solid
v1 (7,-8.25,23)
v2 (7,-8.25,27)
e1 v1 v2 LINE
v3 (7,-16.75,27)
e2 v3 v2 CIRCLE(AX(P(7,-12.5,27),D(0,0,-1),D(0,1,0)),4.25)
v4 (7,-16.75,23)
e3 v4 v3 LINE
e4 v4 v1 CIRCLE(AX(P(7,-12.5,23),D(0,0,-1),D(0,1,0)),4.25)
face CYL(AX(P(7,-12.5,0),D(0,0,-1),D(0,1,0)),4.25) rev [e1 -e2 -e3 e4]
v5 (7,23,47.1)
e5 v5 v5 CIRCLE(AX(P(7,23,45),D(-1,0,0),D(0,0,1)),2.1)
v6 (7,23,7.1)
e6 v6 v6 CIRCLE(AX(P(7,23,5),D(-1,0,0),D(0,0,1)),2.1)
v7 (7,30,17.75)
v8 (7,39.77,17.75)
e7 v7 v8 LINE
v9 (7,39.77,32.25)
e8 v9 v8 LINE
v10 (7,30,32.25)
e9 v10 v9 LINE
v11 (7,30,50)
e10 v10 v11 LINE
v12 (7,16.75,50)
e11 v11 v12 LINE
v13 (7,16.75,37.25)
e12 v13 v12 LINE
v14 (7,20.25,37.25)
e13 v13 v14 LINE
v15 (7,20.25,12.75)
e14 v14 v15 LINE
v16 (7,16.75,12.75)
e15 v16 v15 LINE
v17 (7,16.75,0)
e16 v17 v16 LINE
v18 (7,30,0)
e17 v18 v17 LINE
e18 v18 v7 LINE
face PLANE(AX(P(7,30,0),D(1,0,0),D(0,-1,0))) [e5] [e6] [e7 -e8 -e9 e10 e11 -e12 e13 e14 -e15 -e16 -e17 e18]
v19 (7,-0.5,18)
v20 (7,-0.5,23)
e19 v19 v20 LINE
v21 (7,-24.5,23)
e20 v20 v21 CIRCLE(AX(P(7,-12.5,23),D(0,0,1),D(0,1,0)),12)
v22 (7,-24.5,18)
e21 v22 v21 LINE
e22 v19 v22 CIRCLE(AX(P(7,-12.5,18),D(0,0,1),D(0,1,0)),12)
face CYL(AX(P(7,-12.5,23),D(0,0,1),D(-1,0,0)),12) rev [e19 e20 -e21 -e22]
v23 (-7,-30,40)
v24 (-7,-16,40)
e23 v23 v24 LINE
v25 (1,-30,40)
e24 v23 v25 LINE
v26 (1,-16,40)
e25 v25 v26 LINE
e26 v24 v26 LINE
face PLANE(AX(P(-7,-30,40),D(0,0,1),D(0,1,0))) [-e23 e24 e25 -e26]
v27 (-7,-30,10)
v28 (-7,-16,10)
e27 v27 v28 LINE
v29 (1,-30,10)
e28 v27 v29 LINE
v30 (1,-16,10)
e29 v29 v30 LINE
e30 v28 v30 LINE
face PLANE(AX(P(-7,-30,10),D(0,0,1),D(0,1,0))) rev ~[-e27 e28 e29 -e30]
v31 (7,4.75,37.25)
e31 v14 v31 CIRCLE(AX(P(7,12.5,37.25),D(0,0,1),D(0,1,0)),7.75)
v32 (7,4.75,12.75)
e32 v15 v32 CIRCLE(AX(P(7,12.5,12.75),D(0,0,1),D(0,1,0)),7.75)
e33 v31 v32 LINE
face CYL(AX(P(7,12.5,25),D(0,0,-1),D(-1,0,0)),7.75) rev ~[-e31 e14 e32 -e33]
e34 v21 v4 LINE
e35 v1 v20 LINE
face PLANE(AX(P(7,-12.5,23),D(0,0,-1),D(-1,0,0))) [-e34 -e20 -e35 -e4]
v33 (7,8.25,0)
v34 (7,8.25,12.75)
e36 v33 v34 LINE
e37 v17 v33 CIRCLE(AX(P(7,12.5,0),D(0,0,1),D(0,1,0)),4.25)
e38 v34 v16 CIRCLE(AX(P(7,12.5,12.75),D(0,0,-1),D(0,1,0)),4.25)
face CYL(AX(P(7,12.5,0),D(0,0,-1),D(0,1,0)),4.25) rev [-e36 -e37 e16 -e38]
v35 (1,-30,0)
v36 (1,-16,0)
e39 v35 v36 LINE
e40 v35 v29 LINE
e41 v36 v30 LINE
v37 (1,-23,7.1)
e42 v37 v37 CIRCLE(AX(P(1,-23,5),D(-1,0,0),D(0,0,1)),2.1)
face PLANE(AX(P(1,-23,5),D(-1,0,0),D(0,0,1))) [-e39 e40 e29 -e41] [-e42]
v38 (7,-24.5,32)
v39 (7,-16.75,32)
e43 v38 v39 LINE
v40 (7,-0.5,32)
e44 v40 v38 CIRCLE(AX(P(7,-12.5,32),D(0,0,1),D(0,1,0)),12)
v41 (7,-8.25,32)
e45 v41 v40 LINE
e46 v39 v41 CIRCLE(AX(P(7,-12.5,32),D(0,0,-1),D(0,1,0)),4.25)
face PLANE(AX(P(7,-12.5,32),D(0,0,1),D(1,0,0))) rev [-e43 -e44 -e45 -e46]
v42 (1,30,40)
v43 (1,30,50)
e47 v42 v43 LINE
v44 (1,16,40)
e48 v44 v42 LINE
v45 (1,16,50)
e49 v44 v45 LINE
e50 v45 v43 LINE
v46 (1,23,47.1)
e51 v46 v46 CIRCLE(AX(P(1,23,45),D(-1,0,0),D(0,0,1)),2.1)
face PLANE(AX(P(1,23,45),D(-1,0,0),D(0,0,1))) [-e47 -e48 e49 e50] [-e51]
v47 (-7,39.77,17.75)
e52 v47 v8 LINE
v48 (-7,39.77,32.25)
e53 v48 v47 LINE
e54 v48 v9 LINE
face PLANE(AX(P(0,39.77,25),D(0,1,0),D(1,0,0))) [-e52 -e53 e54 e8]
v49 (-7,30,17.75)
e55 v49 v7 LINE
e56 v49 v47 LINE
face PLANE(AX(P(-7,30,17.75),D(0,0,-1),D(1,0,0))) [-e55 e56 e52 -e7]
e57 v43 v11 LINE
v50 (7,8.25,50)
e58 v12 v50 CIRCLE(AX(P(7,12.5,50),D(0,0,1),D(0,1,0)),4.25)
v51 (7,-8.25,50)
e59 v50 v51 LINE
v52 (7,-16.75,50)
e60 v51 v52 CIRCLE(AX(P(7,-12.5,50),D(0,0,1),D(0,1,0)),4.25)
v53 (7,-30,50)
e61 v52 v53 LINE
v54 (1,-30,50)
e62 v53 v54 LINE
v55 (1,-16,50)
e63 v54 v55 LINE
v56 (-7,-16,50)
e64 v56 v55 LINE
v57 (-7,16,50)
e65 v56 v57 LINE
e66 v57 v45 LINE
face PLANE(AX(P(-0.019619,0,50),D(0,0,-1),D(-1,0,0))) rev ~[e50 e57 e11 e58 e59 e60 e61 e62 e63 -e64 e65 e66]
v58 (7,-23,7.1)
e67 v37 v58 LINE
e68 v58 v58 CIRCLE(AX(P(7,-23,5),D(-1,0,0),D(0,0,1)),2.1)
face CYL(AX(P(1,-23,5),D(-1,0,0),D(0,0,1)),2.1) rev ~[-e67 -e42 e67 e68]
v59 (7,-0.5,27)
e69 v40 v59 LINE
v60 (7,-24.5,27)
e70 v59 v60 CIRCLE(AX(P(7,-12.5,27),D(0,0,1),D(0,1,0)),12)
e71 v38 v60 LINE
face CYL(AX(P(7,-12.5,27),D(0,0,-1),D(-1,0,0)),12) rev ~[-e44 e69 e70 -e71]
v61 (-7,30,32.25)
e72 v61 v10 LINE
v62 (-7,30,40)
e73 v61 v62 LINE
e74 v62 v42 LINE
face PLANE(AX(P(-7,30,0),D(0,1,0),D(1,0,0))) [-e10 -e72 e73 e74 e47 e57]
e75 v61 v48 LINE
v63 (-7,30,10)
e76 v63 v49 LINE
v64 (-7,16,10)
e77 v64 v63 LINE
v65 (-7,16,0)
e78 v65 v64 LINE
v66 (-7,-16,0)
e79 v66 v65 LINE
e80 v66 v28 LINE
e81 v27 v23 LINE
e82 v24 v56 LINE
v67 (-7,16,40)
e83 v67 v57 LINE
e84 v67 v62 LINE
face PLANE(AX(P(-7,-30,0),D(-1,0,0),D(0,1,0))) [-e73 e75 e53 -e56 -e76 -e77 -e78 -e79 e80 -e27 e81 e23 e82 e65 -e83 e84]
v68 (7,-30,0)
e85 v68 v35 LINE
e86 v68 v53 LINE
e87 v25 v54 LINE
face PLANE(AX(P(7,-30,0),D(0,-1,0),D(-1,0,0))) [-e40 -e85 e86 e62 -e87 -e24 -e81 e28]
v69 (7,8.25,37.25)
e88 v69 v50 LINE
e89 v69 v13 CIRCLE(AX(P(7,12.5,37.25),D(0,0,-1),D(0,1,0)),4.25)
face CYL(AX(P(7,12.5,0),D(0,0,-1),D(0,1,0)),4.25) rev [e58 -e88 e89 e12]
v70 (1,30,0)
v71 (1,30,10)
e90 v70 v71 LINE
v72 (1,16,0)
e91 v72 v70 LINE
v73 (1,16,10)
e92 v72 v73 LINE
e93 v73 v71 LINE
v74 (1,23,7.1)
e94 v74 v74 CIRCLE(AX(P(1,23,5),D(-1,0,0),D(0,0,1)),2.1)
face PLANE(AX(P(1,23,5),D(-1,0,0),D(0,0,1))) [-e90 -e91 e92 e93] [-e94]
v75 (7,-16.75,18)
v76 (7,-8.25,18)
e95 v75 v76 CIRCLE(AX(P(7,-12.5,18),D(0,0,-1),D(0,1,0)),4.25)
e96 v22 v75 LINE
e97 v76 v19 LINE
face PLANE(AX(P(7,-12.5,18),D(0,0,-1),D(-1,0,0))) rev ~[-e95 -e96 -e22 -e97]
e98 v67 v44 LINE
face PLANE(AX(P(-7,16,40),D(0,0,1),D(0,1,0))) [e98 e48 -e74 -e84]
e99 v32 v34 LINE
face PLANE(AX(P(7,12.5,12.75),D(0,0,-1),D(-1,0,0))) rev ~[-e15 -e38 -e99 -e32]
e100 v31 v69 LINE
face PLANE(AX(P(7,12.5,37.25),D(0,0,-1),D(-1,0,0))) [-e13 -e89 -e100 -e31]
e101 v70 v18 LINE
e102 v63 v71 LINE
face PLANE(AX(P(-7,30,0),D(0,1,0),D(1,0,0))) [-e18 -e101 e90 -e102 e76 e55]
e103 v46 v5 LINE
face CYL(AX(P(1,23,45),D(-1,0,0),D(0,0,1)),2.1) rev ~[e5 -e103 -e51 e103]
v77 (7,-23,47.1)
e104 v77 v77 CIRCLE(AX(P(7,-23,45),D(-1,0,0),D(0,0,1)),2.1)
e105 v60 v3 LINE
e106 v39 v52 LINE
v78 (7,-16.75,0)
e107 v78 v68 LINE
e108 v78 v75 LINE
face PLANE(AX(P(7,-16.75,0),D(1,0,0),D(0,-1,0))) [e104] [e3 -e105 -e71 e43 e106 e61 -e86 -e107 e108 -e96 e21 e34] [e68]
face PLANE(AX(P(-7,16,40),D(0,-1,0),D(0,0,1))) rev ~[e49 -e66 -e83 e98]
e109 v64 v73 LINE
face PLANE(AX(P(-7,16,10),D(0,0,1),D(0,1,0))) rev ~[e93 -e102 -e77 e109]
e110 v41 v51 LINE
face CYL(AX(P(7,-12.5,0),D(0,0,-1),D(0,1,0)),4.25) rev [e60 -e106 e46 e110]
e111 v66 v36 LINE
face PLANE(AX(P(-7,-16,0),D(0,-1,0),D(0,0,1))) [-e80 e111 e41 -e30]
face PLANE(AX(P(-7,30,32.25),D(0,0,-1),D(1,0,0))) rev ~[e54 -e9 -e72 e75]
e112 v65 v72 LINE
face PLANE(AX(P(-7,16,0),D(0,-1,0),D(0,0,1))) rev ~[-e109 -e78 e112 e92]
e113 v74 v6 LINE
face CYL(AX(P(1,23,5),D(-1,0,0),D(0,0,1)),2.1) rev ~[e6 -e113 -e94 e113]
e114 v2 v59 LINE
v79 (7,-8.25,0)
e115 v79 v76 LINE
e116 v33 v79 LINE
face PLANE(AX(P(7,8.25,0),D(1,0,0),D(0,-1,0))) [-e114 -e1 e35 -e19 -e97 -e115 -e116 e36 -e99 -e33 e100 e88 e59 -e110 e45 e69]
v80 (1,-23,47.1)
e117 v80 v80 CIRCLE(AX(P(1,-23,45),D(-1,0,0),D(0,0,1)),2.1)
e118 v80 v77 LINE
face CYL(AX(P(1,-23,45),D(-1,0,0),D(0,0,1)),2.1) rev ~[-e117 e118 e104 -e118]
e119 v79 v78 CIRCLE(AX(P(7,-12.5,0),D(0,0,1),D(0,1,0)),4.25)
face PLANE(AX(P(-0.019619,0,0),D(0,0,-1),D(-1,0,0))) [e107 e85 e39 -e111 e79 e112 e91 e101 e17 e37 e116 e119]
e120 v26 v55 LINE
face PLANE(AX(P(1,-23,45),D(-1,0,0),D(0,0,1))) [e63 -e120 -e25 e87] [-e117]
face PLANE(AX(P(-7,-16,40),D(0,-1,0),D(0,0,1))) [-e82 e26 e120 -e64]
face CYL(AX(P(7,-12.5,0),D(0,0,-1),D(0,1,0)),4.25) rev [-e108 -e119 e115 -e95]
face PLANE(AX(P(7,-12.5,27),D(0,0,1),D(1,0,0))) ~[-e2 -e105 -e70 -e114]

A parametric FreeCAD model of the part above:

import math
import FreeCAD as App
import Part
import Sketcher

V = App.Vector


def add_polygon(sketch, points):
    """Adds a closed chain of lines whose ends are joined by coincident constraints."""
    first, n = sketch.GeometryCount, len(points)
    for a, b in zip(points, points[1:] + points[:1]):
        sketch.addGeometry(Part.LineSegment(App.Vector(*a, 0), App.Vector(*b, 0)), False)
    for i in range(n):
        sketch.addConstraint(Sketcher.Constraint("Coincident", first + i, 2, first + (i + 1) % n, 1))

doc = App.newDocument("Part")
body = doc.addObject("PartDesign::Body", "Body")

# Sketch on XY plane
sketch1 = body.newObject("Sketcher::SketchObject", "Sketch")
sketch1.AttachmentSupport = (doc.getObject("XY_Plane"), [""])
sketch1.MapMode = "FlatFace"
sketch1.addGeometry([
    Part.LineSegment(V(7, 30, 0), V(-7, 30, 0)),  # 0
    Part.LineSegment(V(-7, 30, 0), V(-7, -30, 0)),  # 1
    Part.LineSegment(V(-7, -30, 0), V(7, -30, 0)),  # 2
    Part.LineSegment(V(7, -30, 0), V(7, -16.8, 0)),  # 3
    Part.ArcOfCircle(Part.Circle(V(7, -12.5, 0), V(0, 0, 1), 4.2), math.radians(90), math.radians(270)),  # 4
    Part.LineSegment(V(7, -8.2, 0), V(7, 8.2, 0)),  # 5
    Part.ArcOfCircle(Part.Circle(V(7, 12.5, 0), V(0, 0, 1), 4.2), math.radians(90), math.radians(270)),  # 6
    Part.LineSegment(V(7, 16.8, 0), V(7, 30, 0)),  # 7
], False)
sketch1.addConstraint([
    Sketcher.Constraint("Coincident", 0, 2, 1, 1),
    Sketcher.Constraint("Coincident", 1, 2, 2, 1),
    Sketcher.Constraint("Coincident", 2, 2, 3, 1),
    Sketcher.Constraint("Coincident", 3, 2, 4, 2),
    Sketcher.Constraint("Coincident", 4, 1, 5, 1),
    Sketcher.Constraint("Coincident", 5, 2, 6, 2),
    Sketcher.Constraint("Coincident", 6, 1, 7, 1),
    Sketcher.Constraint("Coincident", 7, 2, 0, 1),
    Sketcher.Constraint("Horizontal", 0),
    Sketcher.Constraint("Vertical", 1),
    Sketcher.Constraint("Horizontal", 2),
    Sketcher.Constraint("Vertical", 3),
    Sketcher.Constraint("Vertical", 5),
    Sketcher.Constraint("Vertical", 7),
    Sketcher.Constraint("Equal", 4, 6),
    Sketcher.Constraint("Symmetric", 0, 2, 2, 2, -1, 1),
    Sketcher.Constraint("Symmetric", 4, 3, 6, 3, -1),
    Sketcher.Constraint("Vertical", 6, 3, 2, 2),
    Sketcher.Constraint("Vertical", 3, 2, 4, 1),
    Sketcher.Constraint("Vertical", 5, 2, 6, 1),
    Sketcher.Constraint("DistanceX", 0, 2, 0, 1, 14.0),
    Sketcher.Constraint("DistanceY", 1, 2, 1, 1, 60.0),
    Sketcher.Constraint("Radius", 4, 4.25),
    Sketcher.Constraint("DistanceY", 5, 1, 5, 2, 16.5),
])
pad1 = body.newObject("PartDesign::Pad", "Pad")
pad1.Profile = sketch1
pad1.Length = 50

# Sketch on XY plane
sketch2 = body.newObject("Sketcher::SketchObject", "Sketch001")
sketch2.AttachmentSupport = (doc.getObject("XY_Plane"), [""])
sketch2.MapMode = "FlatFace"
sketch2.AttachmentOffset = App.Placement(V(0, 0, 25), App.Rotation())
sketch2.addGeometry(Part.Circle(V(7, 12, 0), V(0, 0, 1), 8), False)
sketch2.addConstraint([
    Sketcher.Constraint("Diameter", 0, 15.5),
    Sketcher.Constraint("DistanceX", -1, 1, 0, 3, 7.0),
    Sketcher.Constraint("DistanceY", -1, 1, 0, 3, 12.5),
])
pocket1 = body.newObject("PartDesign::Pocket", "Pocket")
pocket1.Profile = sketch2
pocket1.Length = 24.5
pocket1.Midplane = True

# Sketch on XY plane
sketch3 = body.newObject("Sketcher::SketchObject", "Sketch002")
sketch3.AttachmentSupport = (doc.getObject("XY_Plane"), [""])
sketch3.MapMode = "FlatFace"
sketch3.AttachmentOffset = App.Placement(V(0, 0, 23), App.Rotation())
sketch3.addGeometry(Part.Circle(V(7, -12, 0), V(0, 0, 1), 12), False)
sketch3.addConstraint([
    Sketcher.Constraint("Diameter", 0, 24.0),
    Sketcher.Constraint("DistanceX", -1, 1, 0, 3, 7.0),
    Sketcher.Constraint("DistanceY", 0, 3, -1, 1, 12.5),
])
pocket2 = body.newObject("PartDesign::Pocket", "Pocket001")
pocket2.Profile = sketch3
pocket2.Length = 5
doc.recompute()

datumplane = body.newObject("PartDesign::Plane", "DatumPlane")
datumplane.AttachmentSupport = (doc.getObject("XY_Plane"), [""])
datumplane.MapMode = "FlatFace"
datumplane.AttachmentOffset = App.Placement(V(0, 0, 25), App.Rotation())
mirrored = body.newObject("PartDesign::Mirrored", "Mirrored")
mirrored.Originals = [pocket2]
mirrored.MirrorPlane = (datumplane, [""])
body.Tip = mirrored

# Sketch on YZ plane
sketch4 = body.newObject("Sketcher::SketchObject", "Sketch003")
sketch4.AttachmentSupport = (doc.getObject("YZ_Plane"), [""])
sketch4.MapMode = "FlatFace"
sketch4.AttachmentOffset = App.Placement(V(0, 0, -7), App.Rotation())
add_polygon(sketch4, [(30, 0), (16, 0), (16, 10), (30, 10)])  # lines 0-3
add_polygon(sketch4, [(30, 40), (16, 40), (16, 50), (30, 50)])  # lines 4-7
add_polygon(sketch4, [(-16, 40), (-30, 40), (-30, 50), (-16, 50)])  # lines 8-11
add_polygon(sketch4, [(-16, 0), (-30, 0), (-30, 10), (-16, 10)])  # lines 12-15
sketch4.addConstraint([
    Sketcher.Constraint("Horizontal", 0),
    Sketcher.Constraint("Vertical", 1),
    Sketcher.Constraint("Horizontal", 2),
    Sketcher.Constraint("Vertical", 3),
    Sketcher.Constraint("Horizontal", 4),
    Sketcher.Constraint("Vertical", 5),
    Sketcher.Constraint("Horizontal", 6),
    Sketcher.Constraint("Vertical", 7),
    Sketcher.Constraint("Horizontal", 8),
    Sketcher.Constraint("Vertical", 9),
    Sketcher.Constraint("Horizontal", 10),
    Sketcher.Constraint("Vertical", 11),
    Sketcher.Constraint("Horizontal", 12),
    Sketcher.Constraint("Vertical", 13),
    Sketcher.Constraint("Horizontal", 14),
    Sketcher.Constraint("Vertical", 15),
    Sketcher.Constraint("Symmetric", 3, 2, 12, 2, -1, 1),
    Sketcher.Constraint("Symmetric", 7, 2, 8, 2, -2),
    Sketcher.Constraint("Symmetric", 5, 2, 10, 2, -2),
    Sketcher.Constraint("Symmetric", 1, 2, 14, 2, -2),
    Sketcher.Constraint("PointOnObject", 0, 2, -1),
    Sketcher.Constraint("Vertical", 1, 2, 4, 2),
    Sketcher.Constraint("Vertical", 3, 2, 6, 2),
    Sketcher.Constraint("Equal", 3, 5),
    Sketcher.Constraint("DistanceX", 0, 2, 0, 1, 14.0),
    Sketcher.Constraint("DistanceY", 1, 1, 1, 2, 10.0),
    Sketcher.Constraint("DistanceX", -1, 1, 0, 2, 16.0),
    Sketcher.Constraint("DistanceY", -1, 1, 4, 2, 40.0),
])
pocket3 = body.newObject("PartDesign::Pocket", "Pocket002")
pocket3.Profile = sketch4
pocket3.Length = 8
pocket3.Reversed = True

# Sketch on YZ plane
sketch5 = body.newObject("Sketcher::SketchObject", "Sketch004")
sketch5.AttachmentSupport = (doc.getObject("YZ_Plane"), [""])
sketch5.MapMode = "FlatFace"
sketch5.AttachmentOffset = App.Placement(V(0, 0, 1), App.Rotation())
sketch5.addGeometry([
    Part.Circle(V(23, 5, 0), V(0, 0, 1), 2.1),
    Part.Circle(V(23, 45, 0), V(0, 0, 1), 2.1),
    Part.Circle(V(-23, 5, 0), V(0, 0, 1), 2.1),
    Part.Circle(V(-23, 45, 0), V(0, 0, 1), 2.1),
], False)
sketch5.addConstraint([
    Sketcher.Constraint("Equal", 0, 1),
    Sketcher.Constraint("Equal", 1, 2),
    Sketcher.Constraint("Equal", 2, 3),
    Sketcher.Constraint("Symmetric", 0, 3, 2, 3, -2),
    Sketcher.Constraint("Symmetric", 1, 3, 3, 3, -2),
    Sketcher.Constraint("Vertical", 0, 3, 1, 3),
    Sketcher.Constraint("Diameter", 0, 4.2),
    Sketcher.Constraint("DistanceX", -1, 1, 0, 3, 23.0),
    Sketcher.Constraint("DistanceY", -1, 1, 0, 3, 5.0),
    Sketcher.Constraint("DistanceY", -1, 1, 1, 3, 45.0),
])
pocket4 = body.newObject("PartDesign::Pocket", "Pocket003")
pocket4.Profile = sketch5
pocket4.Type = "ThroughAll"
pocket4.Reversed = True

# Sketch on XZ plane
sketch6 = body.newObject("Sketcher::SketchObject", "Sketch005")
sketch6.AttachmentSupport = (doc.getObject("XZ_Plane"), [""])
sketch6.MapMode = "FlatFace"
sketch6.AttachmentOffset = App.Placement(V(0, 0, -30), App.Rotation())
add_polygon(sketch6, [(-7, 18), (-7, 32), (7, 32), (7, 18)])  # lines 0-3
sketch6.addConstraint([
    Sketcher.Constraint("Vertical", 0),
    Sketcher.Constraint("Horizontal", 1),
    Sketcher.Constraint("Vertical", 2),
    Sketcher.Constraint("Horizontal", 3),
    Sketcher.Constraint("DistanceX", 1, 1, 1, 2, 14.0),
    Sketcher.Constraint("DistanceY", 0, 1, 0, 2, 14.5),
    Sketcher.Constraint("DistanceX", 0, 2, -1, 1, 7.0),
    Sketcher.Constraint("DistanceY", -1, 1, 0, 2, 32.25),
])
pad2 = body.newObject("PartDesign::Pad", "Pad001")
pad2.Profile = sketch6
pad2.Length = 9.77
pad2.Reversed = True

doc.recompute()
